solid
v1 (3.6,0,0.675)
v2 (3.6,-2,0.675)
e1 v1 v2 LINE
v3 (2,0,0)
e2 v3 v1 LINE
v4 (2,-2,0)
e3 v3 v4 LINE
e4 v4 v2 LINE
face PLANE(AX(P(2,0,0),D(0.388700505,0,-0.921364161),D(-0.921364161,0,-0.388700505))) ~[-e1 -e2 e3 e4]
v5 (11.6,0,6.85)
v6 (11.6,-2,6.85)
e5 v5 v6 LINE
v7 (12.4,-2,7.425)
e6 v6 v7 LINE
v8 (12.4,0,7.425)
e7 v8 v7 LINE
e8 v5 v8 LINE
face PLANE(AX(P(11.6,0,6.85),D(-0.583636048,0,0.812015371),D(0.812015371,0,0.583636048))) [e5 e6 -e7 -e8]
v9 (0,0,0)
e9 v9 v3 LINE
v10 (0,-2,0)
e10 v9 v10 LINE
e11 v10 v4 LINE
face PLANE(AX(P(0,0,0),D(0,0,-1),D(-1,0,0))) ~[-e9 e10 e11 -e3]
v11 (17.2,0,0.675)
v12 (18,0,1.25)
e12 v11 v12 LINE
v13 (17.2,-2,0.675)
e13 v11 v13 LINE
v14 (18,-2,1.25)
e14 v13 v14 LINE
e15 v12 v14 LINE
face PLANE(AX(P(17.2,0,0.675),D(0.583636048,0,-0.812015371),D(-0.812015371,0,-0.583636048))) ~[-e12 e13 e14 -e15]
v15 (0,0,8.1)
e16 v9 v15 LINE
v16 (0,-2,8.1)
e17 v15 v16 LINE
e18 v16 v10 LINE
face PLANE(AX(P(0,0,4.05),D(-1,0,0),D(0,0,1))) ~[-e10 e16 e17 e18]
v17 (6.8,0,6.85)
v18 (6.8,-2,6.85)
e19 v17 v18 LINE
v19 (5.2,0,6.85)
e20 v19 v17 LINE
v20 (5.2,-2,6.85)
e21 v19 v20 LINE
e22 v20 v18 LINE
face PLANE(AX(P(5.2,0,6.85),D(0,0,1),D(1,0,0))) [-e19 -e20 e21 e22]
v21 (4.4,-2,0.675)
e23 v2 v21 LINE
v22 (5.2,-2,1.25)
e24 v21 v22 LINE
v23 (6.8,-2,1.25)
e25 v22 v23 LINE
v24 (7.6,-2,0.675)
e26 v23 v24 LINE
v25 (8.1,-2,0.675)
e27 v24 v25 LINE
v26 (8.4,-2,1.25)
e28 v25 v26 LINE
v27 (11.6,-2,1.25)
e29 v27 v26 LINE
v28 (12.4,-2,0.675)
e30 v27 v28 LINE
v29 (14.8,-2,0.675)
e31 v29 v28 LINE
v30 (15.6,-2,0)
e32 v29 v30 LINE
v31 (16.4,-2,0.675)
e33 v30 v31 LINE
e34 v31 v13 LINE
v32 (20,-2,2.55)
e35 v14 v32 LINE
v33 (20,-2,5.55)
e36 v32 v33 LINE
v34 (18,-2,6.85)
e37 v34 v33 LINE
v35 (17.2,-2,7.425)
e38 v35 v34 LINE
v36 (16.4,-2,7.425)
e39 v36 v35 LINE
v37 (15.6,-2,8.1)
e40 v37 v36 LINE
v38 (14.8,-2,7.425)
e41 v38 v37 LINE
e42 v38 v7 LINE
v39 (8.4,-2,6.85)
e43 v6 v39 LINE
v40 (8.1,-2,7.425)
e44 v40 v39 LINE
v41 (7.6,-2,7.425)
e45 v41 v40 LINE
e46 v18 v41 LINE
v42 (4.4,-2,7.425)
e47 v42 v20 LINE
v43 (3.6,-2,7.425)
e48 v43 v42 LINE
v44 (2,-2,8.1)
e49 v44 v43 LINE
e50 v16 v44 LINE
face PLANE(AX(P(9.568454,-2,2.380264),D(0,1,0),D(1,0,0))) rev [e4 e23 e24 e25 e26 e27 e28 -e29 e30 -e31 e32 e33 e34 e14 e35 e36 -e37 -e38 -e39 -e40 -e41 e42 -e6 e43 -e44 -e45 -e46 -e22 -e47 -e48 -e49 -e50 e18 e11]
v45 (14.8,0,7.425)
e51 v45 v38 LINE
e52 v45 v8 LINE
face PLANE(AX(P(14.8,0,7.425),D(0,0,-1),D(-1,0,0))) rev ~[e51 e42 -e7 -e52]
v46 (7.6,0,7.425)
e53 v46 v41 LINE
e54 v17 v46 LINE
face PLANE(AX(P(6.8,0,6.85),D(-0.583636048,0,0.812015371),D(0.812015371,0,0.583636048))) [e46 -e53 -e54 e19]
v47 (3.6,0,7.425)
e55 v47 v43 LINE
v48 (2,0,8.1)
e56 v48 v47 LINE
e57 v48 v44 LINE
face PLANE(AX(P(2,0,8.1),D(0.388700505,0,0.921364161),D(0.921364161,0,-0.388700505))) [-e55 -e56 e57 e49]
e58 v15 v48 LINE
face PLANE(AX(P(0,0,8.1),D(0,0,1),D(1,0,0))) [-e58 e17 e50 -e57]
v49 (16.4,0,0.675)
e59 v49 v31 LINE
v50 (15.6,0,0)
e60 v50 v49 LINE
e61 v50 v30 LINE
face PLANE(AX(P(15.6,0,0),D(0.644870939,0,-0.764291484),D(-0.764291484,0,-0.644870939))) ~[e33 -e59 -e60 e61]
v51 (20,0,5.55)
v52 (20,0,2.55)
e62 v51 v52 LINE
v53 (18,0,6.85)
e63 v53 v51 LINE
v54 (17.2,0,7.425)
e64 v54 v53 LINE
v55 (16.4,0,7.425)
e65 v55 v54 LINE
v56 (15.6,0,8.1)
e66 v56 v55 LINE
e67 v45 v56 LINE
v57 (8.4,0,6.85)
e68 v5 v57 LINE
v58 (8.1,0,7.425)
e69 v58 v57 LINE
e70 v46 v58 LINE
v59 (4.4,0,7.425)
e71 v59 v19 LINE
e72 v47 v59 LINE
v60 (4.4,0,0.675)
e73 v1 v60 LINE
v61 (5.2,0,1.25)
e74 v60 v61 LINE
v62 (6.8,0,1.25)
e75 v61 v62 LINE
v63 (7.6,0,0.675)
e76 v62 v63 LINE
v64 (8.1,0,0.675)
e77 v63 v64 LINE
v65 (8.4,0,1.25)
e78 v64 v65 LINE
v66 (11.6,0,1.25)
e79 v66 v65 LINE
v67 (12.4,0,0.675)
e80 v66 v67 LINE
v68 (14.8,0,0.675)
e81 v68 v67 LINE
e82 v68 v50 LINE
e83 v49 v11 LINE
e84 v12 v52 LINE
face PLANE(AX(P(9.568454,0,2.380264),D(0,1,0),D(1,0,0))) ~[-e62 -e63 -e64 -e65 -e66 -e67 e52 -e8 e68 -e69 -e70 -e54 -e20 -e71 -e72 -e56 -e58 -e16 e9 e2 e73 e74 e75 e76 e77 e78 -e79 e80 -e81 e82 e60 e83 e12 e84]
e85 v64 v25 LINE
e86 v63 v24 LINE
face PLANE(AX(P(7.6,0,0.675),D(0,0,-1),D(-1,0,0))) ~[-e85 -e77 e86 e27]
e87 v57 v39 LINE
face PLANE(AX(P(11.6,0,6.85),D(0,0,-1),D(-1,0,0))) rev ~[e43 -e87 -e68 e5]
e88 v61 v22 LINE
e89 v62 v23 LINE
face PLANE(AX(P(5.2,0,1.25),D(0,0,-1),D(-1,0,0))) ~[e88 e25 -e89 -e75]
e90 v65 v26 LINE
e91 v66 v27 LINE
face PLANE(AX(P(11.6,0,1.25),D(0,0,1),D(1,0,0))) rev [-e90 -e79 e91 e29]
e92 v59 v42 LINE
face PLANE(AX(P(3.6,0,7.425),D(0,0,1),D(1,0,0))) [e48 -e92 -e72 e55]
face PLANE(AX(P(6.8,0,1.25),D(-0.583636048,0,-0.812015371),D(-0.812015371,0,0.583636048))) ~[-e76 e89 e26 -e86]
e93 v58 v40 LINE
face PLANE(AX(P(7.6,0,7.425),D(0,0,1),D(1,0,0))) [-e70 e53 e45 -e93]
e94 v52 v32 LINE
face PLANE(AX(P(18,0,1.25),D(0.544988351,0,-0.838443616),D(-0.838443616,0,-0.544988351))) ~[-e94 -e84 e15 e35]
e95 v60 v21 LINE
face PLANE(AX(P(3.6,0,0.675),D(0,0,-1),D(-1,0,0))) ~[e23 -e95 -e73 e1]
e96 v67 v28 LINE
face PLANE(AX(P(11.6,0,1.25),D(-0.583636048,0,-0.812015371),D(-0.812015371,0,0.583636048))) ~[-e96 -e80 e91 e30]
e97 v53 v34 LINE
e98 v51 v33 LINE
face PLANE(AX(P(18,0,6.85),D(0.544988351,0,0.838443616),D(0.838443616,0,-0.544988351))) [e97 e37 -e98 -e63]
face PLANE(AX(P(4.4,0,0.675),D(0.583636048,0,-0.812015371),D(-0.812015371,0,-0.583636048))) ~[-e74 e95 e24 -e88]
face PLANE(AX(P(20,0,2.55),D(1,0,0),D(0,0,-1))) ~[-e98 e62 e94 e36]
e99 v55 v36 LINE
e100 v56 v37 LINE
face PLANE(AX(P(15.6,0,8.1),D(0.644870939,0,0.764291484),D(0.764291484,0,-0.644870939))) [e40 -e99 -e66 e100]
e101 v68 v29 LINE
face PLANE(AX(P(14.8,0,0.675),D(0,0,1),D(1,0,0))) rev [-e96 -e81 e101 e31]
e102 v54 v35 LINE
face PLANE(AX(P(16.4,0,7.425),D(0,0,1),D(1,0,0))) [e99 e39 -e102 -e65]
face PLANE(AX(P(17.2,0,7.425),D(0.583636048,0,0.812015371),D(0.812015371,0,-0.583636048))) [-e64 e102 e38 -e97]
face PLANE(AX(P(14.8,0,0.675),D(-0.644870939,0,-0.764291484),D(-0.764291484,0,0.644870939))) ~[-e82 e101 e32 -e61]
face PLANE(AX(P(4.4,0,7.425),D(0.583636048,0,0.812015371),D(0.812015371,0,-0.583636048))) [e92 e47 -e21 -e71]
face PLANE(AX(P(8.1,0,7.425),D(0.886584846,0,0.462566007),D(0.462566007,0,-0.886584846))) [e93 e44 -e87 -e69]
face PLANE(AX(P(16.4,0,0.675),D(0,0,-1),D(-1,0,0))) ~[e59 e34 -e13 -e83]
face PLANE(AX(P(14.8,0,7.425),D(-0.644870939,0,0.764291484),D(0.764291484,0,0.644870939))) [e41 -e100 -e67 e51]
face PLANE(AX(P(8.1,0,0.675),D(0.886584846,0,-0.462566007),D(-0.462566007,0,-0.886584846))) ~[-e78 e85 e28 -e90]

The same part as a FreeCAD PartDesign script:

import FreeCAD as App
import Part
import Sketcher

V = App.Vector


def add_polygon(sketch, points):
    """Adds a closed chain of lines whose ends are joined by coincident constraints."""
    first, n = sketch.GeometryCount, len(points)
    for a, b in zip(points, points[1:] + points[:1]):
        sketch.addGeometry(Part.LineSegment(App.Vector(*a, 0), App.Vector(*b, 0)), False)
    for i in range(n):
        sketch.addConstraint(Sketcher.Constraint("Coincident", first + i, 2, first + (i + 1) % n, 1))

doc = App.newDocument("Part")
body = doc.addObject("PartDesign::Body", "Body")

sketch1 = doc.addObject("Sketcher::SketchObject", "Sketch")
body.addObject(sketch1)
sketch1.AttachmentSupport = (doc.XZ_Plane, [""])
sketch1.MapMode = "FlatFace"
add_polygon(sketch1, [(3.6, 7.4), (2, 8.1), (0, 8.1), (0, 4), (20, 4), (20, 5.5), (18, 6.8), (17.2, 7.4), (16.4, 7.4), (15.6, 8.1), (14.8, 7.4), (12.4, 7.4), (11.6, 6.8), (8.4, 6.8), (8.1, 7.4), (7.6, 7.4), (6.8, 6.8), (5.2, 6.8), (4.4, 7.4)])
sketch1.addConstraint(Sketcher.Constraint("Horizontal", 1))
sketch1.addConstraint(Sketcher.Constraint("Vertical", 2))
sketch1.addConstraint(Sketcher.Constraint("Horizontal", 3))
sketch1.addConstraint(Sketcher.Constraint("Vertical", 4))
sketch1.addConstraint(Sketcher.Constraint("Horizontal", 7))
sketch1.addConstraint(Sketcher.Constraint("Horizontal", 10))
sketch1.addConstraint(Sketcher.Constraint("Horizontal", 12))
sketch1.addConstraint(Sketcher.Constraint("Horizontal", 14))
sketch1.addConstraint(Sketcher.Constraint("Horizontal", 16))
sketch1.addConstraint(Sketcher.Constraint("Horizontal", 18))
sketch1.addConstraint(Sketcher.Constraint("PointOnObject", 1, 2, -2))
sketch1.addConstraint(Sketcher.Constraint("Parallel", 11, 15))
sketch1.addConstraint(Sketcher.Constraint("Parallel", 6, 17))
sketch1.addConstraint(Sketcher.Constraint("Horizontal", 1, 2, 8, 2))
sketch1.addConstraint(Sketcher.Constraint("Horizontal", 7, 2, 9, 2))
sketch1.addConstraint(Sketcher.Constraint("Horizontal", 5, 2, 11, 2))
sketch1.addConstraint(Sketcher.Constraint("Horizontal", 10, 2, 13, 2))
sketch1.addConstraint(Sketcher.Constraint("Horizontal", 12, 2, 15, 2))
sketch1.addConstraint(Sketcher.Constraint("Horizontal", 14, 2, 17, 2))
sketch1.addConstraint(Sketcher.Constraint("Equal", 7, 18))
sketch1.addConstraint(Sketcher.Constraint("Equal", 8, 9))
sketch1.addConstraint(Sketcher.Constraint("Equal", 6, 11))
sketch1.addConstraint(Sketcher.Constraint("DistanceX", 1, 2, 1, 1, 2.0))
sketch1.addConstraint(Sketcher.Constraint("DistanceX", 3, 1, 3, 2, 20.0))
sketch1.addConstraint(Sketcher.Constraint("DistanceX", 7, 2, 7, 1, 0.8))
sketch1.addConstraint(Sketcher.Constraint("DistanceX", 10, 2, 10, 1, 2.4))
sketch1.addConstraint(Sketcher.Constraint("DistanceX", 12, 2, 12, 1, 3.2))
sketch1.addConstraint(Sketcher.Constraint("DistanceX", 14, 2, 14, 1, 0.5))
sketch1.addConstraint(Sketcher.Constraint("DistanceX", 16, 2, 16, 1, 1.6))
sketch1.addConstraint(Sketcher.Constraint("DistanceY", 4, 1, 4, 2, 1.5))
sketch1.addConstraint(Sketcher.Constraint("DistanceX", -1, 1, 5, 2, 18.0))
sketch1.addConstraint(Sketcher.Constraint("DistanceX", 10, 2, 7, 2, 4.0))
sketch1.addConstraint(Sketcher.Constraint("DistanceX", 11, 2, 8, 2, 4.0))
sketch1.addConstraint(Sketcher.Constraint("DistanceX", 14, 2, 11, 2, 4.0))
sketch1.addConstraint(Sketcher.Constraint("DistanceY", 2, 2, 2, 1, 4.05))
sketch1.addConstraint(Sketcher.Constraint("DistanceY", -1, 1, 0, 2, 8.1))
sketch1.addConstraint(Sketcher.Constraint("DistanceY", 4, 2, 5, 2, 1.3))
sketch1.addConstraint(Sketcher.Constraint("DistanceY", -1, 1, 6, 2, 7.425))
pad1 = doc.addObject("PartDesign::Pad", "Pad")
body.addObject(pad1)
pad1.Profile = sketch1
pad1.Length = 2
doc.recompute()

datumplane = doc.addObject("PartDesign::Plane", "DatumPlane")
body.addObject(datumplane)
datumplane.AttachmentSupport = (doc.XY_Plane, [""])
datumplane.MapMode = "FlatFace"
datumplane.AttachmentOffset = App.Placement(V(0, 0, 4.05), App.Rotation())
mirrored = doc.addObject("PartDesign::Mirrored", "Mirrored")
body.addObject(mirrored)
mirrored.Originals = [pad1]
mirrored.MirrorPlane = (datumplane, [""])
body.Tip = mirrored

doc.recompute()
